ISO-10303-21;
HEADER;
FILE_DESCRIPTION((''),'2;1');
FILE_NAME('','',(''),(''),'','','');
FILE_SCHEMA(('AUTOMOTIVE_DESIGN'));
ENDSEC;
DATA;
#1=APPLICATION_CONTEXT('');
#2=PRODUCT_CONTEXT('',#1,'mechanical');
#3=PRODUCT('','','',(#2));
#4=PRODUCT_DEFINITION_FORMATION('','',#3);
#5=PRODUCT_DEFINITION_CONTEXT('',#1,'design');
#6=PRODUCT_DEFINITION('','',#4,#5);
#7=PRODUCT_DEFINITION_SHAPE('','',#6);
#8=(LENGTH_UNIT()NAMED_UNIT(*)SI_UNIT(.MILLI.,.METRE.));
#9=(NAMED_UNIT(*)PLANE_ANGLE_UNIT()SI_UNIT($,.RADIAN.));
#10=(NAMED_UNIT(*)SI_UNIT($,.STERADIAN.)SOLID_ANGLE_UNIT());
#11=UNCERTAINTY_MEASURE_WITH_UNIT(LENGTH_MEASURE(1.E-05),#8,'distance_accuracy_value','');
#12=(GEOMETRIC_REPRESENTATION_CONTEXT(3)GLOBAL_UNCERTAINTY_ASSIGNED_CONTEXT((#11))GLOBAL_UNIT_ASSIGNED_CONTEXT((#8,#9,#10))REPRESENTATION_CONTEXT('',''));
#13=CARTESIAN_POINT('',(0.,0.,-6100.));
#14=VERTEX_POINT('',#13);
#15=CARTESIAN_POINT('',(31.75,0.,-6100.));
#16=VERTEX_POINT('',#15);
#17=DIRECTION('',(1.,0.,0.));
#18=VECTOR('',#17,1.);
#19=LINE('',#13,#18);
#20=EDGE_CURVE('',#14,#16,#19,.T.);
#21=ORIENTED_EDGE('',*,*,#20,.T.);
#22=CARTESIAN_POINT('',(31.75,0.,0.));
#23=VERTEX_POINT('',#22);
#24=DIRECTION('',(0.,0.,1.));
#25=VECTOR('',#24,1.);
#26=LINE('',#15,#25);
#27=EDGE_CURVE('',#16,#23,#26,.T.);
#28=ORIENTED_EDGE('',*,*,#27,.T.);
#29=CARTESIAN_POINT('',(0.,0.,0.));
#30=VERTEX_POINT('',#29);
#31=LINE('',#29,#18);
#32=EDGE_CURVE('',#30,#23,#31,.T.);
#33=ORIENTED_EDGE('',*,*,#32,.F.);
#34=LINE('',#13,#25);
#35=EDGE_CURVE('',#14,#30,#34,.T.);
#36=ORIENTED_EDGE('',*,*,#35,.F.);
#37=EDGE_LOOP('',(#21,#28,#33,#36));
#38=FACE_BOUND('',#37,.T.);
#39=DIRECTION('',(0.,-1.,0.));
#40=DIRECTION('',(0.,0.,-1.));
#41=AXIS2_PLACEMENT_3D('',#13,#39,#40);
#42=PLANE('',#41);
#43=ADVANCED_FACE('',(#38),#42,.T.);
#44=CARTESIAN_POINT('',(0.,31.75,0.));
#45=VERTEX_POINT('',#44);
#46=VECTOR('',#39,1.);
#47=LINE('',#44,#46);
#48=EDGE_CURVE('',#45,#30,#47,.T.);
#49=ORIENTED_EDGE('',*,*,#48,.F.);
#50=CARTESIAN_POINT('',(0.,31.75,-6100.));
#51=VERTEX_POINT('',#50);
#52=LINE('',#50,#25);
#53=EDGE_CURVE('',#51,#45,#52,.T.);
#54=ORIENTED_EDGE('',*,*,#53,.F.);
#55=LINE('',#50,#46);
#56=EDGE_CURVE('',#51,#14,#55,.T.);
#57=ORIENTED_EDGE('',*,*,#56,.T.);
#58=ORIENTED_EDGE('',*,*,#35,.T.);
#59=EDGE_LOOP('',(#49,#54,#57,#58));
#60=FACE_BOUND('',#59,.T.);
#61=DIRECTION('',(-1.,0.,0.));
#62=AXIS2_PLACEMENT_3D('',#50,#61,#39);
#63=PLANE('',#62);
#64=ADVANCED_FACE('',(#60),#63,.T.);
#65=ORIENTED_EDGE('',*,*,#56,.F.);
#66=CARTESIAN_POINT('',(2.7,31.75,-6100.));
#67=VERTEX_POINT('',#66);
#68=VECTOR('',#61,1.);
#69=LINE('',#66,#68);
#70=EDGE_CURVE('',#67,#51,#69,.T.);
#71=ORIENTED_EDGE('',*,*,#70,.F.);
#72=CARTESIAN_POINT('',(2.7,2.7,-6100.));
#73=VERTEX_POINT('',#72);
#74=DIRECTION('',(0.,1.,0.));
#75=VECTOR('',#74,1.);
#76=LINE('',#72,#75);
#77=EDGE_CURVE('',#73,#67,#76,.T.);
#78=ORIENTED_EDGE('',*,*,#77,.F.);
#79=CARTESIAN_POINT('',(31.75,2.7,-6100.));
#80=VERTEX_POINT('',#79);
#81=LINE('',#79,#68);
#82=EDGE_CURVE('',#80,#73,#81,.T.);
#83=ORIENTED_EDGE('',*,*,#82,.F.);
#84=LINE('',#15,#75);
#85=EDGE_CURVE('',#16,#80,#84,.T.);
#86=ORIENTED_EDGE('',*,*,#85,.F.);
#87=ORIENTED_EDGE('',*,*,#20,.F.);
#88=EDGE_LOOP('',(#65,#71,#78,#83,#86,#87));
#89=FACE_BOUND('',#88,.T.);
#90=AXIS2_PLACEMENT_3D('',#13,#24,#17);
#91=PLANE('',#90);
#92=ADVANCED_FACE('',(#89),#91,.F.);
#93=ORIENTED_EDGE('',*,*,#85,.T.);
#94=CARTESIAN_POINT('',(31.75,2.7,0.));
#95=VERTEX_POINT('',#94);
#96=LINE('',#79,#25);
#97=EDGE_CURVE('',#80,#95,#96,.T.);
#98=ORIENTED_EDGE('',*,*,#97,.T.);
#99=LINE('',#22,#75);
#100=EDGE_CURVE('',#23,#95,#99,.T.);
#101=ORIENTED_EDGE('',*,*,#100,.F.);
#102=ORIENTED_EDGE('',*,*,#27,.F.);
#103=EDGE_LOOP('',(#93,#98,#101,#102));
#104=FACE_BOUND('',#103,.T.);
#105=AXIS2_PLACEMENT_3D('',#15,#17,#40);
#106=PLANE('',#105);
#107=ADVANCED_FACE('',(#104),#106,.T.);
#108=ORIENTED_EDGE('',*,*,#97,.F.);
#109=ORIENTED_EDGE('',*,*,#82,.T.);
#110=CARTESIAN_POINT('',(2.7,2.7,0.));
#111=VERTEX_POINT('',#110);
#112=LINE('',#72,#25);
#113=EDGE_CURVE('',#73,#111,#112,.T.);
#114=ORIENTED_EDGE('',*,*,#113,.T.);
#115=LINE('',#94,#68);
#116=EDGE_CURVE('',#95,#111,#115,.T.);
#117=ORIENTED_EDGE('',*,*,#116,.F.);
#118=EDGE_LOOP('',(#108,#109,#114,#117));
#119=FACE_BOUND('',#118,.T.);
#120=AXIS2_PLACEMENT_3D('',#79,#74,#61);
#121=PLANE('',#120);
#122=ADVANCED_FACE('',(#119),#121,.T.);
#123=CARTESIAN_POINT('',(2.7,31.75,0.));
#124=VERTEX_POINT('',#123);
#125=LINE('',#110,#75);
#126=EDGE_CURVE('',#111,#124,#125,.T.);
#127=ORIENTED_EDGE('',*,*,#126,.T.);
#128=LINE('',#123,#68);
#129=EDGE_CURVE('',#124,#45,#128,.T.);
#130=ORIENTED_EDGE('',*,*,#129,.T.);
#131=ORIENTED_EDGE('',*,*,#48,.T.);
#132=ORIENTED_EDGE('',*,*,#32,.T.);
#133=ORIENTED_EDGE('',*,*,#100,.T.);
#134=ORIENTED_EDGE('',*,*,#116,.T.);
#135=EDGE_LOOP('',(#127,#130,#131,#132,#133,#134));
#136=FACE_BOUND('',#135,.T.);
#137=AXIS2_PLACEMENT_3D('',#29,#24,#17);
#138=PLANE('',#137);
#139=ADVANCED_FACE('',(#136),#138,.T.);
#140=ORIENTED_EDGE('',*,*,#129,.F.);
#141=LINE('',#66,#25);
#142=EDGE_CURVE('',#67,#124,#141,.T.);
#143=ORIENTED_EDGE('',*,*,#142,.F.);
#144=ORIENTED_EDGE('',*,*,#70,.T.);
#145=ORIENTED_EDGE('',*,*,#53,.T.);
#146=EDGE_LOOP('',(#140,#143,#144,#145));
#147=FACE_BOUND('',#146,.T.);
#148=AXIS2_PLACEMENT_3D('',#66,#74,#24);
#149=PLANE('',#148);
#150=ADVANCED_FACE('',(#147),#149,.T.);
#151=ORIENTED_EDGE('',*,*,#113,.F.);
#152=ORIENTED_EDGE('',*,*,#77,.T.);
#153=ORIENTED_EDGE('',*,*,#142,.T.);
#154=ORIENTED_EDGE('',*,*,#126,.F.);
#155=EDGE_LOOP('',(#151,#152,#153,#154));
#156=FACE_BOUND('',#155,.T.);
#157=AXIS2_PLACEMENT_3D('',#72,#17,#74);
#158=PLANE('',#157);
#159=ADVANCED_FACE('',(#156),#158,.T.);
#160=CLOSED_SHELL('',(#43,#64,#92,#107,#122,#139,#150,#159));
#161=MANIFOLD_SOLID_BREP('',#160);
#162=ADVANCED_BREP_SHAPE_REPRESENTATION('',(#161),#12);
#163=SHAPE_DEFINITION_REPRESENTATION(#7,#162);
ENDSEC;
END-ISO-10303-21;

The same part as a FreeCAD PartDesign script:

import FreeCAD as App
import Part
import Sketcher
from FreeCAD import Vector
Q = App.Units.Quantity

doc = App.newDocument("Part")
body = doc.addObject("PartDesign::Body", "Body")

sketch1 = body.newObject("Sketcher::SketchObject", "Sketch")
sketch1.AttachmentSupport = (doc.getObject("XY_Plane"), [""])
sketch1.MapMode = "FlatFace"
sketch1.addGeometry([
    Part.LineSegment(Vector(0, 31.8, 0), Vector(0, 0, 0)),
    Part.LineSegment(Vector(0, 0, 0), Vector(31.8, 0, 0)),
    Part.LineSegment(Vector(31.8, 0, 0), Vector(31.8, 2.7, 0)),
    Part.LineSegment(Vector(31.8, 2.7, 0), Vector(2.7, 2.7, 0)),
    Part.LineSegment(Vector(2.7, 2.7, 0), Vector(2.7, 31.8, 0)),
    Part.LineSegment(Vector(2.7, 31.8, 0), Vector(0, 31.8, 0)),
], False)
sketch1.addConstraint([
    Sketcher.Constraint("Coincident", 0, 2, 1, 1),
    Sketcher.Constraint("Coincident", 1, 2, 2, 1),
    Sketcher.Constraint("Coincident", 2, 2, 3, 1),
    Sketcher.Constraint("Coincident", 3, 2, 4, 1),
    Sketcher.Constraint("Coincident", 4, 2, 5, 1),
    Sketcher.Constraint("Coincident", 5, 2, 0, 1),
    Sketcher.Constraint("Vertical", 0),
    Sketcher.Constraint("Horizontal", 1),
    Sketcher.Constraint("Vertical", 2),
    Sketcher.Constraint("Horizontal", 3),
    Sketcher.Constraint("Vertical", 4),
    Sketcher.Constraint("Horizontal", 5),
    Sketcher.Constraint("Coincident", 0, 2, -1, 1),
    Sketcher.Constraint("Equal", 1, 0),
    Sketcher.Constraint("Equal", 5, 2),
    Sketcher.Constraint("DistanceX", 5, 2, 5, 1, Q("2.7 mm")),
    Sketcher.Constraint("DistanceX", 1, 1, 1, 2, Q("31.75 mm")),
])
pad1 = body.newObject("PartDesign::Pad", "Pad")
pad1.Profile = sketch1
pad1.Length = 6100
pad1.Reversed = True

doc.recompute()
